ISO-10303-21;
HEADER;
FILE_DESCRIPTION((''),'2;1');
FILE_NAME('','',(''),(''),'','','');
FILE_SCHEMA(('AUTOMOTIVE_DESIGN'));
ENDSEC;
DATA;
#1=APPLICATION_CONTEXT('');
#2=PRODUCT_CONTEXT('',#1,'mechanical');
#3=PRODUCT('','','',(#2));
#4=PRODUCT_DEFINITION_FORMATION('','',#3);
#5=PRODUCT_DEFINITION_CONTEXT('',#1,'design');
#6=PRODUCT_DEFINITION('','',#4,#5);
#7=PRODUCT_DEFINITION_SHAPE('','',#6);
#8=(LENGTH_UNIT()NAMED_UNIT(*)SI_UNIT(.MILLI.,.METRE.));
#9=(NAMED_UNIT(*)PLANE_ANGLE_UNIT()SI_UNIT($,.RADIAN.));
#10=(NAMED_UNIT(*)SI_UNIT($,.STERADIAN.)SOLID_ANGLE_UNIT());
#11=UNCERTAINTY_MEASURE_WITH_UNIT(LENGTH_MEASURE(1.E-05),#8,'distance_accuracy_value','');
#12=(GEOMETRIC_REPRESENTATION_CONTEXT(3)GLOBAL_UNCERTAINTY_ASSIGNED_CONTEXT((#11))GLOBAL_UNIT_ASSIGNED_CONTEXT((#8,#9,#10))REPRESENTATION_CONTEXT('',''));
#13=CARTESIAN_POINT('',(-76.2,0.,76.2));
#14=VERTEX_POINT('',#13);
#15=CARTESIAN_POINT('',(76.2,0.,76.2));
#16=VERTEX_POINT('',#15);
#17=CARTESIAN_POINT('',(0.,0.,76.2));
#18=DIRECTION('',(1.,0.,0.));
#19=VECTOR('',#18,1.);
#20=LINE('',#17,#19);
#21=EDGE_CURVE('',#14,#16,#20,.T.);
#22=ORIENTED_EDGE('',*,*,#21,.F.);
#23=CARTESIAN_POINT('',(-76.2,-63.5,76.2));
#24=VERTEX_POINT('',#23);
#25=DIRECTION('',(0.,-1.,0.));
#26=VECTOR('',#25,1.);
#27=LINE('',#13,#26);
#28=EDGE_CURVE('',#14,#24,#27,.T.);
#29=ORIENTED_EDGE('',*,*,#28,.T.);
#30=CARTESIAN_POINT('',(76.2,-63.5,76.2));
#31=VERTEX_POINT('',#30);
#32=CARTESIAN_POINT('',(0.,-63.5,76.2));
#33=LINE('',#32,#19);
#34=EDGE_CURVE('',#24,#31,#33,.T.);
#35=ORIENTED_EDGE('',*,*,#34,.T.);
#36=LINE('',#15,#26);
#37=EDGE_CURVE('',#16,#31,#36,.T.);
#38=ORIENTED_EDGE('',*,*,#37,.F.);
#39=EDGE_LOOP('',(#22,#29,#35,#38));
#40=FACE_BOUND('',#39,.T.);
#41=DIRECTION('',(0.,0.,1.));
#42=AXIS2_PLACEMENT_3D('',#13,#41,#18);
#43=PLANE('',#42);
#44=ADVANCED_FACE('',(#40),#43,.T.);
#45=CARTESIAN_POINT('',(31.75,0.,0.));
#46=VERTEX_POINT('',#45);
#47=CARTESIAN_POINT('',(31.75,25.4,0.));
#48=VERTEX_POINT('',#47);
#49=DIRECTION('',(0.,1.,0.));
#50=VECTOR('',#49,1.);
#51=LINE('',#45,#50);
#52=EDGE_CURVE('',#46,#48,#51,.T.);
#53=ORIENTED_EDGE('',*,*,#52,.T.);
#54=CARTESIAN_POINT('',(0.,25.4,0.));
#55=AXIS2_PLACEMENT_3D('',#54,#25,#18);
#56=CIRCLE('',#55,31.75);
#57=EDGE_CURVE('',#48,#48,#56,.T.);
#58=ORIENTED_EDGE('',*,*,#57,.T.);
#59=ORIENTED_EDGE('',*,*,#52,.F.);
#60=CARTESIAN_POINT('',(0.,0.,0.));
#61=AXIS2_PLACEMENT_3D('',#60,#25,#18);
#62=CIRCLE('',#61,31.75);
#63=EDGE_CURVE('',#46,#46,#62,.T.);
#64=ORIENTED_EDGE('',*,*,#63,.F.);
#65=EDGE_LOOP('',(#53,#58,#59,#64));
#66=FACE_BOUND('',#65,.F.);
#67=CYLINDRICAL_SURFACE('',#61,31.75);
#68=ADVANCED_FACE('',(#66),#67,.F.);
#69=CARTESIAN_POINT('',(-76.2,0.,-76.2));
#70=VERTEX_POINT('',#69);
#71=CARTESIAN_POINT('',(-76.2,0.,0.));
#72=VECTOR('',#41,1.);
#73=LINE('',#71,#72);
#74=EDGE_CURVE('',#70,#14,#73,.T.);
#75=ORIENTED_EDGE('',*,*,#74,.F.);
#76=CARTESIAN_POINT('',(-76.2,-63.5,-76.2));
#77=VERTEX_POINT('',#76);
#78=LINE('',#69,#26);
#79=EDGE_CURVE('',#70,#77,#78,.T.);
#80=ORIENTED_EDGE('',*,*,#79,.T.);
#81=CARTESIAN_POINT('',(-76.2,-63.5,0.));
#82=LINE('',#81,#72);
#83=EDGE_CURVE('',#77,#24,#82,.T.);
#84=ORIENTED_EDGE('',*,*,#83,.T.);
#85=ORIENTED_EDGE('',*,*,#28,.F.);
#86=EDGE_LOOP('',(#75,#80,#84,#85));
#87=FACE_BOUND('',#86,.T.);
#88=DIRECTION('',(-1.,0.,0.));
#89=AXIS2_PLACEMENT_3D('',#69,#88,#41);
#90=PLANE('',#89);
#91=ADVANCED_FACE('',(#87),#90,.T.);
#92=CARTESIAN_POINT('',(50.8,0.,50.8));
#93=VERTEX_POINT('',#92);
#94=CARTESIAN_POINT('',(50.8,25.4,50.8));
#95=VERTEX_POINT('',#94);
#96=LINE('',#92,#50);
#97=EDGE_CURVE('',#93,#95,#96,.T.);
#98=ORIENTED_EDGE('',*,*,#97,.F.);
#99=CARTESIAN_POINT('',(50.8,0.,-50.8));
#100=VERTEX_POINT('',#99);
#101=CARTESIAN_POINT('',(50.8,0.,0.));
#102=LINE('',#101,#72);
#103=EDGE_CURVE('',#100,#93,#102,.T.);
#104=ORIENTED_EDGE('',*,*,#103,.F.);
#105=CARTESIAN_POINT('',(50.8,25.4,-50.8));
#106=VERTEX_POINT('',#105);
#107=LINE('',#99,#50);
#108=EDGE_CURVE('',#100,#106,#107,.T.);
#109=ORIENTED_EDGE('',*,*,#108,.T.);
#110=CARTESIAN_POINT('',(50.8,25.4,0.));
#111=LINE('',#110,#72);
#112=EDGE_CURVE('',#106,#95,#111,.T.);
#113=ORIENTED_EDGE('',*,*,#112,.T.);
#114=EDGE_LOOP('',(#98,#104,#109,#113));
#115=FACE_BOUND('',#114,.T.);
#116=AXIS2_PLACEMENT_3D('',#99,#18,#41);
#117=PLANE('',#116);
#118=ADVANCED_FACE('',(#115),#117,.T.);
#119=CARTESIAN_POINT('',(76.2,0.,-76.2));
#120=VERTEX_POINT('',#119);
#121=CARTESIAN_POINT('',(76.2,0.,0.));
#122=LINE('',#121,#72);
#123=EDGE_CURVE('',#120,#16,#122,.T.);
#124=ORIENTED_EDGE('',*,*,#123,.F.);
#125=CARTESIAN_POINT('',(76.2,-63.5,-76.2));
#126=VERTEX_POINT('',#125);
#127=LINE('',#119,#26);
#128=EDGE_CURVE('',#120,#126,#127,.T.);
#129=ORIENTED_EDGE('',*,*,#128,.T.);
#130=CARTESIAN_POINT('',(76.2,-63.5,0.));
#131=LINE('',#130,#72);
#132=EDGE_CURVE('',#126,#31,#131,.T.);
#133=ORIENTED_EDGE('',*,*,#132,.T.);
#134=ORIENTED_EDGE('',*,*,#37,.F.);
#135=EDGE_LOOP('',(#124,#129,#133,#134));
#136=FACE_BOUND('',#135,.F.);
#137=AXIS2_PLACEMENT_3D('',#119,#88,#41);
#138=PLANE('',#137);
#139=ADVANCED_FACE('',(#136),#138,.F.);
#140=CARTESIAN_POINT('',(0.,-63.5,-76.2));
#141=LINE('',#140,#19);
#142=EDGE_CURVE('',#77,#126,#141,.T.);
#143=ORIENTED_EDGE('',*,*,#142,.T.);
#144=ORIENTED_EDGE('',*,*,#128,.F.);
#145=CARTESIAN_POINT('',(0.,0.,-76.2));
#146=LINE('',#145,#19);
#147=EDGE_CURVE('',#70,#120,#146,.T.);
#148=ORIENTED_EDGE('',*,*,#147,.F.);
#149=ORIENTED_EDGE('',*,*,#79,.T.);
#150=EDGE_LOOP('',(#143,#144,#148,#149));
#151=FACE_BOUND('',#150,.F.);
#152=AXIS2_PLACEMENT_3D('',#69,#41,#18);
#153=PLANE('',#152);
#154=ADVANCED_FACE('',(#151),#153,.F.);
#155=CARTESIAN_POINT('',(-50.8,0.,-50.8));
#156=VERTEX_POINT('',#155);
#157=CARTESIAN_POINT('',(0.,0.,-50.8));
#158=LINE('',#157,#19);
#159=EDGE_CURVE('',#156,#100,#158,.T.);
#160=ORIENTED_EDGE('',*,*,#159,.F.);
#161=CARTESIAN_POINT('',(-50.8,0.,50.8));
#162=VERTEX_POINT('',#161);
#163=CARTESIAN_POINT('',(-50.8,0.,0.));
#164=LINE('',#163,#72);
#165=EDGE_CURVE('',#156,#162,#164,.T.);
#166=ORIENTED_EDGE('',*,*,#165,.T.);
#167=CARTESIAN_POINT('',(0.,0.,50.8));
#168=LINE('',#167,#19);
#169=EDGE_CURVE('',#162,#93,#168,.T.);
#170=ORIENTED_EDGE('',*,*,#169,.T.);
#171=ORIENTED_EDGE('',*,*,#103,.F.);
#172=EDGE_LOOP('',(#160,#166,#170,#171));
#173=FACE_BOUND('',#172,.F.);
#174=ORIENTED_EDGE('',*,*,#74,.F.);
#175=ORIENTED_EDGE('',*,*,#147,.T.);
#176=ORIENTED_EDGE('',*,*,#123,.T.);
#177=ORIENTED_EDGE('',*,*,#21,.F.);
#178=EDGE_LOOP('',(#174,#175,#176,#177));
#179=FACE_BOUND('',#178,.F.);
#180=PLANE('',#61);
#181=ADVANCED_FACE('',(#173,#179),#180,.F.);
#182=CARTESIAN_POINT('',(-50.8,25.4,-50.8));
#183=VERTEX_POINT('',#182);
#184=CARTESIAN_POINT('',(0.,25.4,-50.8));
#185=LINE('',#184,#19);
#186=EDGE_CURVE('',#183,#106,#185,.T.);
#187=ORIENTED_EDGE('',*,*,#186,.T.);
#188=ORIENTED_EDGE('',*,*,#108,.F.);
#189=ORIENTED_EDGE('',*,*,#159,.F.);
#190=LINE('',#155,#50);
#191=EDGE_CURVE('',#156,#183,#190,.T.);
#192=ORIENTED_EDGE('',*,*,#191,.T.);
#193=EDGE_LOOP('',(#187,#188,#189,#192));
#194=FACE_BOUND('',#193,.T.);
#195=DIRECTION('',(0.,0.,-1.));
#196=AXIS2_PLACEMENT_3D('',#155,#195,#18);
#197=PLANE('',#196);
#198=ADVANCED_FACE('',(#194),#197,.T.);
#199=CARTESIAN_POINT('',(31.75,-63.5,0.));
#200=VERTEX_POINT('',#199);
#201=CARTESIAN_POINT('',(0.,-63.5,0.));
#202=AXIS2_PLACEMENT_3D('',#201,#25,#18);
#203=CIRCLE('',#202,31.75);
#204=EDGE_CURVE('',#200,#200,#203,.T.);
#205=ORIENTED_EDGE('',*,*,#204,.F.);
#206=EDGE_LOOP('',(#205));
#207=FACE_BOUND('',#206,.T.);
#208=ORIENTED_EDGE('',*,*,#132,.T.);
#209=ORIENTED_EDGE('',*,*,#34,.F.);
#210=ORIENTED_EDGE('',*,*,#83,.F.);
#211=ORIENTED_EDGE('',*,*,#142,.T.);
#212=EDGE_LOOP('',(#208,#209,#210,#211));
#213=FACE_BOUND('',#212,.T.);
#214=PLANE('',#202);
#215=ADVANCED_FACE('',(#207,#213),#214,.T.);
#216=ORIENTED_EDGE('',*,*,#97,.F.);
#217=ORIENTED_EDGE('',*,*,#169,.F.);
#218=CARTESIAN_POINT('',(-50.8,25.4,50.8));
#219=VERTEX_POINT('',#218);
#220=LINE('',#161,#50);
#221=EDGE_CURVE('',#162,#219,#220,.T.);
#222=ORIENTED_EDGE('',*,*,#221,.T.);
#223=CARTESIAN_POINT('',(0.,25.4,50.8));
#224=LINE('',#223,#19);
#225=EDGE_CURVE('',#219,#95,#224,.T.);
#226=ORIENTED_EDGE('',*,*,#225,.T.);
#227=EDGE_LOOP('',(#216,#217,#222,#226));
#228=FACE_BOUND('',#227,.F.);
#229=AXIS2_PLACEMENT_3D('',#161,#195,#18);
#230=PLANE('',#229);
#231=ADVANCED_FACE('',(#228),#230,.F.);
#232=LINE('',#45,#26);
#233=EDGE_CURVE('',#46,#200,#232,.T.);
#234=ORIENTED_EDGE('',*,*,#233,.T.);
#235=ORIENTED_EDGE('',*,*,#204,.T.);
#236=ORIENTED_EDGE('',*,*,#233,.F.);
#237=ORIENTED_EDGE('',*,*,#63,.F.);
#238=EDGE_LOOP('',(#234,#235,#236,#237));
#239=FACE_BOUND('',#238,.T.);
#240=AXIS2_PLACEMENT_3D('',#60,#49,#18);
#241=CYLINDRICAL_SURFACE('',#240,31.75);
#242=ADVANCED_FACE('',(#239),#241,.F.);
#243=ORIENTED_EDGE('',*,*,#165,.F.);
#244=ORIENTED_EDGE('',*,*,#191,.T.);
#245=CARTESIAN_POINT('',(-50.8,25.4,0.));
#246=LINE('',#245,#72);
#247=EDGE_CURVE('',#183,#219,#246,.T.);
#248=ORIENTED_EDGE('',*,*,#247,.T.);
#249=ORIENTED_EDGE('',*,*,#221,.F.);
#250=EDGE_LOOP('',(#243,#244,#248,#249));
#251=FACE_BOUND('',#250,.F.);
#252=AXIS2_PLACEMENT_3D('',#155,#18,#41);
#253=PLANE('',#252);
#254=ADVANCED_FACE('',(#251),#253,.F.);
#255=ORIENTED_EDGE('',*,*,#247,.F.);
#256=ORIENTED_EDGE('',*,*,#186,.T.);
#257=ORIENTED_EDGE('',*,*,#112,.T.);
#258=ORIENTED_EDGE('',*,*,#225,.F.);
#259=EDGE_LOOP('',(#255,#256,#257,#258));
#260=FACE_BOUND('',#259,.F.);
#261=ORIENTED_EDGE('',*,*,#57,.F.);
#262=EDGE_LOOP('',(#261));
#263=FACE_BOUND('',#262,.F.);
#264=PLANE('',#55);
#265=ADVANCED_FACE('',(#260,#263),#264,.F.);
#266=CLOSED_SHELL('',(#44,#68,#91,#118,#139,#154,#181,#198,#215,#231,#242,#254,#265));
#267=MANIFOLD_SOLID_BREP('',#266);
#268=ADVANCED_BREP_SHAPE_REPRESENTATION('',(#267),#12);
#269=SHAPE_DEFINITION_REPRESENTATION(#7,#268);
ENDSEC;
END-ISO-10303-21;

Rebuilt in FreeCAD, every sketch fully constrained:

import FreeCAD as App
import Part
import Sketcher
Q = App.Units.Quantity


def add_polygon(sketch, points):
    """Adds a closed chain of lines whose ends are joined by coincident constraints."""
    first, n = sketch.GeometryCount, len(points)
    for a, b in zip(points, points[1:] + points[:1]):
        sketch.addGeometry(Part.LineSegment(App.Vector(*a, 0), App.Vector(*b, 0)), False)
    for i in range(n):
        sketch.addConstraint(Sketcher.Constraint("Coincident", first + i, 2, first + (i + 1) % n, 1))

doc = App.newDocument("Part")
body = doc.addObject("PartDesign::Body", "Body")

sketch1 = doc.addObject("Sketcher::SketchObject", "Sketch")
body.addObject(sketch1)
sketch1.AttachmentSupport = (doc.XZ_Plane, [""])
sketch1.MapMode = "FlatFace"
add_polygon(sketch1, [(-76.2, 76.2), (-76.2, -76.2), (76.2, -76.2), (76.2, 76.2)])
sketch1.addGeometry(Part.Circle(App.Vector(0, 0, 0), App.Vector(0, 0, 1), 31.75), False)
sketch1.addConstraint([
    Sketcher.Constraint("Vertical", 0),
    Sketcher.Constraint("Horizontal", 1),
    Sketcher.Constraint("Vertical", 2),
    Sketcher.Constraint("Horizontal", 3),
    Sketcher.Constraint("Coincident", 4, 3, -1, 1),
    Sketcher.Constraint("Symmetric", 0, 2, 2, 2, -1, 1),
    Sketcher.Constraint("Equal", 3, 0),
    Sketcher.Constraint("Diameter", 4, Q("2.5 in")),
    Sketcher.Constraint("DistanceX", 1, 1, 1, 2, Q("6 in")),
])
pad1 = doc.addObject("PartDesign::Pad", "Pad")
body.addObject(pad1)
pad1.Profile = sketch1
pad1.Length = Q("2.5 in")

sketch2 = doc.addObject("Sketcher::SketchObject", "Sketch001")
body.addObject(sketch2)
sketch2.AttachmentSupport = (doc.XZ_Plane, [""])
sketch2.MapMode = "FlatFace"
add_polygon(sketch2, [(-50.8, 50.8), (-50.8, -50.8), (50.8, -50.8), (50.8, 50.8)])
sketch2.addGeometry(Part.Circle(App.Vector(0, 0, 0), App.Vector(0, 0, 1), 31.75), False)
sketch2.addConstraint([
    Sketcher.Constraint("Vertical", 0),
    Sketcher.Constraint("Horizontal", 1),
    Sketcher.Constraint("Vertical", 2),
    Sketcher.Constraint("Horizontal", 3),
    Sketcher.Constraint("Coincident", 4, 3, -1, 1),
    Sketcher.Constraint("Symmetric", 0, 2, 2, 2, -1, 1),
    Sketcher.Constraint("Equal", 3, 0),
    Sketcher.Constraint("Diameter", 4, Q("2.5 in")),
    Sketcher.Constraint("DistanceX", 1, 1, 1, 2, Q("4 in")),
])
pad2 = doc.addObject("PartDesign::Pad", "Pad001")
body.addObject(pad2)
pad2.Profile = sketch2
pad2.Length = Q("1 in")
pad2.Reversed = True

doc.recompute()
